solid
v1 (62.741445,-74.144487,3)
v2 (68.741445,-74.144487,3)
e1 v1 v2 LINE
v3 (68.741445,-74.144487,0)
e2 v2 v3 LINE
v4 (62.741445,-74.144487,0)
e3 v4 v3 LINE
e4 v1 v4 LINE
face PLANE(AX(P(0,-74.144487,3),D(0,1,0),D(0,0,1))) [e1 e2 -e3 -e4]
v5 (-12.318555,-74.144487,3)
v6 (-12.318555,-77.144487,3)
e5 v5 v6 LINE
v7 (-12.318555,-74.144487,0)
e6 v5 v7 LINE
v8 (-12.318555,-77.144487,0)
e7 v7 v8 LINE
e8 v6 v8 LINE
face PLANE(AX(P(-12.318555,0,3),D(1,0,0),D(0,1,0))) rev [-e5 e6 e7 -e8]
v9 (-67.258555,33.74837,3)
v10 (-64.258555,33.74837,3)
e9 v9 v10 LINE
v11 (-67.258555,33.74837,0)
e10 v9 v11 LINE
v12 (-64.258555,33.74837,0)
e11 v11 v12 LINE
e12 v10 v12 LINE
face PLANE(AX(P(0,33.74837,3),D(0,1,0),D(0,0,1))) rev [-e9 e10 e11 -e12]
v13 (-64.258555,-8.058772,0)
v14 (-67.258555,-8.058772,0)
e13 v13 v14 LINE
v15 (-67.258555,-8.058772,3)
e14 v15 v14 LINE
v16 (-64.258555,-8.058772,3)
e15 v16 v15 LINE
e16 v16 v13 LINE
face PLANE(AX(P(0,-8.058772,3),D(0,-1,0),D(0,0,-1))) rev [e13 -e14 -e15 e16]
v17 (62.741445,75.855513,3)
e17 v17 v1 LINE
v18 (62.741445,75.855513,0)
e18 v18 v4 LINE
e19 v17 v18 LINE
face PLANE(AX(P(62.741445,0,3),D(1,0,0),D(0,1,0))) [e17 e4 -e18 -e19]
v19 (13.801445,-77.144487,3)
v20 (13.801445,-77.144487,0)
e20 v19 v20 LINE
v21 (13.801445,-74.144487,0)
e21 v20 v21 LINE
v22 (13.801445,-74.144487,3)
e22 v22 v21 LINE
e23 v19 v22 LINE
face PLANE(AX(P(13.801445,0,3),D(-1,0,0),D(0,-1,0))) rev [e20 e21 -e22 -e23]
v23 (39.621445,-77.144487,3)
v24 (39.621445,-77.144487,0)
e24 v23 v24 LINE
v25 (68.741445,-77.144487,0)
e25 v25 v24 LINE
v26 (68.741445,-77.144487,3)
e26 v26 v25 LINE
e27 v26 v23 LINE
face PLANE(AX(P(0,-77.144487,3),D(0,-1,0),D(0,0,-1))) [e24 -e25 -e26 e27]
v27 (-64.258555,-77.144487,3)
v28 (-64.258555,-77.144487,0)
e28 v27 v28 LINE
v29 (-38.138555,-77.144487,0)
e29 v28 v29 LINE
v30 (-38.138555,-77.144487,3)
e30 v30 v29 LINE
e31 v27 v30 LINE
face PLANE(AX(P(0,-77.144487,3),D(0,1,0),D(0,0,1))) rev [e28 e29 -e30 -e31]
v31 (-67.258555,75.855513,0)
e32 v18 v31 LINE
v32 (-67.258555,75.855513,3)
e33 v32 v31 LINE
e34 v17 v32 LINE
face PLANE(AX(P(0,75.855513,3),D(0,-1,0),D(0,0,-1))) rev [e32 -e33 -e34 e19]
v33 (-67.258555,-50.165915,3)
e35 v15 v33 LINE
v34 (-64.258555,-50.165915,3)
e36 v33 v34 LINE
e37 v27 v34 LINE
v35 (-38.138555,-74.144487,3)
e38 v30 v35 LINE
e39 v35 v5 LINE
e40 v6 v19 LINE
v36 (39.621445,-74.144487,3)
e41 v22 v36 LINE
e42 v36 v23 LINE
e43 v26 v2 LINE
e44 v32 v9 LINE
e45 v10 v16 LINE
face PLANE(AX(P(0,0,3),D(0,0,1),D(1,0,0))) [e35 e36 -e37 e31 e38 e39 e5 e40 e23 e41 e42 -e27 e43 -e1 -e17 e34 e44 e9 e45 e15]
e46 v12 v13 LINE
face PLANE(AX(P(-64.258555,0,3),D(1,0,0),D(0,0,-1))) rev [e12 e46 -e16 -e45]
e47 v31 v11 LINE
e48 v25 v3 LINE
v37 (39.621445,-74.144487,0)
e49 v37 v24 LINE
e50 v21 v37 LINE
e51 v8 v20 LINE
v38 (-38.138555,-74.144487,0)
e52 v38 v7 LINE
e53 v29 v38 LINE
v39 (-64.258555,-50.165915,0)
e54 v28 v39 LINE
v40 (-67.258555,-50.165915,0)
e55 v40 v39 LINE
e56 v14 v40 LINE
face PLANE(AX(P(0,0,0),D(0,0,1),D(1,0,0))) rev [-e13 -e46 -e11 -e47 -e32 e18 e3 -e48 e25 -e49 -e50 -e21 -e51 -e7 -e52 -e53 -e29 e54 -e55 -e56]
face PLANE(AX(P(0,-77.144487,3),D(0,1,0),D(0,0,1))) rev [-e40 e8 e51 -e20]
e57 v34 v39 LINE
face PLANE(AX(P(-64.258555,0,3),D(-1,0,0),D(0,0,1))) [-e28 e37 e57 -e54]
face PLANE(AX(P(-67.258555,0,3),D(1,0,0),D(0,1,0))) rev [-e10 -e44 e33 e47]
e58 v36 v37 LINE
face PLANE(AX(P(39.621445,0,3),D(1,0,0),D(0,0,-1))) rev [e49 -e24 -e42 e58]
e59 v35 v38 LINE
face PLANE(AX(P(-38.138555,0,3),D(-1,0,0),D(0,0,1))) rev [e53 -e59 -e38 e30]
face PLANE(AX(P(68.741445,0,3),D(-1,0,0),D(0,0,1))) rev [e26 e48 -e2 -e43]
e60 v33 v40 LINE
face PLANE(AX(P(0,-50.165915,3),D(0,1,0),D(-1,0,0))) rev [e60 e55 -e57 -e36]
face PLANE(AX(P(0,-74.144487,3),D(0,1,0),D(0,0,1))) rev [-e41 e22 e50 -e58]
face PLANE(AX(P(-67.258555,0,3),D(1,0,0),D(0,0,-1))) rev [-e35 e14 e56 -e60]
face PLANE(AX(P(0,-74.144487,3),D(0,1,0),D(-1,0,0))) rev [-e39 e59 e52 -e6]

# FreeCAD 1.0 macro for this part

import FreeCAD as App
import Part
import Sketcher


def add_polygon(sketch, points):
    """Adds a closed chain of lines whose ends are joined by coincident constraints."""
    first, n = sketch.GeometryCount, len(points)
    for a, b in zip(points, points[1:] + points[:1]):
        sketch.addGeometry(Part.LineSegment(App.Vector(*a, 0), App.Vector(*b, 0)), False)
    for i in range(n):
        sketch.addConstraint(Sketcher.Constraint("Coincident", first + i, 2, first + (i + 1) % n, 1))

doc = App.newDocument("Part")
body = doc.addObject("PartDesign::Body", "Body")

# Sketch on XY plane
sketch1 = body.newObject("Sketcher::SketchObject", "Sketch")
sketch1.AttachmentSupport = (doc.getObject("XY_Plane"), [""])
sketch1.MapMode = "FlatFace"
add_polygon(sketch1, [(68.7, -77.1), (68.7, -74.1), (62.7, -74.1), (62.7, 75.9), (-67.3, 75.9), (-67.3, 33.7), (-64.3, 33.7), (-64.3, -8.1), (-67.3, -8.1), (-67.3, -50.2), (-64.3, -50.2), (-64.3, -77.1), (-38.1, -77.1), (-38.1, -74.1), (-12.3, -74.1), (-12.3, -77.1), (13.8, -77.1), (13.8, -74.1), (39.6, -74.1), (39.6, -77.1)])  # lines 0-19
sketch1.addConstraint(Sketcher.Constraint("Vertical", 0))
sketch1.addConstraint(Sketcher.Constraint("Horizontal", 1))
sketch1.addConstraint(Sketcher.Constraint("Vertical", 2))
sketch1.addConstraint(Sketcher.Constraint("Horizontal", 3))
sketch1.addConstraint(Sketcher.Constraint("Vertical", 4))
sketch1.addConstraint(Sketcher.Constraint("Horizontal", 5))
sketch1.addConstraint(Sketcher.Constraint("Vertical", 6))
sketch1.addConstraint(Sketcher.Constraint("Horizontal", 7))
sketch1.addConstraint(Sketcher.Constraint("Vertical", 8))
sketch1.addConstraint(Sketcher.Constraint("Horizontal", 9))
sketch1.addConstraint(Sketcher.Constraint("Vertical", 10))
sketch1.addConstraint(Sketcher.Constraint("Horizontal", 11))
sketch1.addConstraint(Sketcher.Constraint("Vertical", 12))
sketch1.addConstraint(Sketcher.Constraint("Horizontal", 13))
sketch1.addConstraint(Sketcher.Constraint("Vertical", 14))
sketch1.addConstraint(Sketcher.Constraint("Horizontal", 15))
sketch1.addConstraint(Sketcher.Constraint("Vertical", 16))
sketch1.addConstraint(Sketcher.Constraint("Horizontal", 17))
sketch1.addConstraint(Sketcher.Constraint("Vertical", 18))
sketch1.addConstraint(Sketcher.Constraint("Horizontal", 19))
sketch1.addConstraint(Sketcher.Constraint("Horizontal", 1, 2, 12, 2))
sketch1.addConstraint(Sketcher.Constraint("Horizontal", 11, 2, 14, 2))
sketch1.addConstraint(Sketcher.Constraint("Horizontal", 13, 2, 16, 2))
sketch1.addConstraint(Sketcher.Constraint("Horizontal", 15, 2, 18, 2))
sketch1.addConstraint(Sketcher.Constraint("Vertical", 4, 2, 7, 2))
sketch1.addConstraint(Sketcher.Constraint("Vertical", 6, 2, 9, 2))
sketch1.addConstraint(Sketcher.Constraint("Equal", 11, 15))
sketch1.addConstraint(Sketcher.Constraint("Equal", 13, 17))
sketch1.addConstraint(Sketcher.Constraint("Equal", 9, 0))
sketch1.addConstraint(Sketcher.Constraint("Equal", 4, 8))
sketch1.addConstraint(Sketcher.Constraint("DistanceX", 1, 2, 1, 1, 6.0))
sketch1.addConstraint(Sketcher.Constraint("DistanceX", 3, 2, 3, 1, 130.0))
sketch1.addConstraint(Sketcher.Constraint("DistanceX", 5, 1, 5, 2, 3.0))
sketch1.addConstraint(Sketcher.Constraint("DistanceY", 2, 1, 2, 2, 150.0))
sketch1.addConstraint(Sketcher.Constraint("DistanceX", 11, 1, 11, 2, 26.12))
sketch1.addConstraint(Sketcher.Constraint("DistanceX", 13, 1, 13, 2, 25.82))
sketch1.addConstraint(Sketcher.Constraint("DistanceY", 10, 2, 10, 1, 26.978571))
sketch1.addConstraint(Sketcher.Constraint("DistanceY", 4, 2, 4, 1, 42.107143))
sketch1.addConstraint(Sketcher.Constraint("DistanceY", -1, 1, 4, 2, 33.74837))
sketch1.addConstraint(Sketcher.Constraint("DistanceX", -1, 1, 0, 2, 68.741445))
pad1 = body.newObject("PartDesign::Pad", "Pad")
pad1.Profile = sketch1
pad1.Length = 3

doc.recompute()
